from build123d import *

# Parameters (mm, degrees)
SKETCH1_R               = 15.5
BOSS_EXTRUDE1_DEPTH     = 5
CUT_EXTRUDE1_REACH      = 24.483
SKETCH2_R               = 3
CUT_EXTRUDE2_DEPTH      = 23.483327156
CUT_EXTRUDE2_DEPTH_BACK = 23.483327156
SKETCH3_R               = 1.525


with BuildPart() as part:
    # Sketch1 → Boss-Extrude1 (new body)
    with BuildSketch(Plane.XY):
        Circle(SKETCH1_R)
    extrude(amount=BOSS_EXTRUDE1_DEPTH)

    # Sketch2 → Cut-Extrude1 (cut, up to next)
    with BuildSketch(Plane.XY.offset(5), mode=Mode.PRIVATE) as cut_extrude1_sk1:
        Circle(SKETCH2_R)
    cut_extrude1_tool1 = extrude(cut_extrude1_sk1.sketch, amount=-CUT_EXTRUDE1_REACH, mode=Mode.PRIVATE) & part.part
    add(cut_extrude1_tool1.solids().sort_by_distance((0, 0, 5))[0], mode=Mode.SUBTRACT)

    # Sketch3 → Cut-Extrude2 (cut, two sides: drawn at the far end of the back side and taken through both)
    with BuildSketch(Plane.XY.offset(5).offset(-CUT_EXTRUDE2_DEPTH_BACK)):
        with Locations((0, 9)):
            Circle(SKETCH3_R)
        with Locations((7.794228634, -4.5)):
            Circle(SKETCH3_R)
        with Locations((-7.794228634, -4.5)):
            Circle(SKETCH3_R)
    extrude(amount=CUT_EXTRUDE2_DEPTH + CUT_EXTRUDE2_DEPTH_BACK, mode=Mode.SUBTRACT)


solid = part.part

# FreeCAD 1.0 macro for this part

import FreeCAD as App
import Part
import Sketcher

doc = App.newDocument("Part")
body = doc.addObject("PartDesign::Body", "Body")

# Sketch on XY plane
sketch1 = body.newObject("Sketcher::SketchObject", "Sketch")
sketch1.AttachmentSupport = (doc.getObject("XY_Plane"), [""])
sketch1.MapMode = "FlatFace"
sketch1.addGeometry(Part.Circle(App.Vector(0, 0, 0), App.Vector(0, 0, 1), 16), False)
sketch1.addConstraint([
    Sketcher.Constraint("Coincident", 0, 3, -1, 1),
    Sketcher.Constraint("Diameter", 0, 31.0),
])
pad1 = body.newObject("PartDesign::Pad", "Pad")
pad1.Profile = sketch1
pad1.Length = 5

# Sketch on XY plane
sketch2 = body.newObject("Sketcher::SketchObject", "Sketch001")
sketch2.AttachmentSupport = (doc.getObject("XY_Plane"), [""])
sketch2.MapMode = "FlatFace"
sketch2.AttachmentOffset = App.Placement(App.Vector(0, 0, 5), App.Rotation())
sketch2.addGeometry(Part.Circle(App.Vector(0, 0, 0), App.Vector(0, 0, 1), 3), False)
sketch2.addConstraint([
    Sketcher.Constraint("Coincident", 0, 3, -1, 1),
    Sketcher.Constraint("Diameter", 0, 6.0),
])
pocket1 = body.newObject("PartDesign::Pocket", "Pocket")
pocket1.Profile = sketch2
pocket1.Type = "UpToFirst"

# Sketch on XY plane
sketch3 = body.newObject("Sketcher::SketchObject", "Sketch002")
sketch3.AttachmentSupport = (doc.getObject("XY_Plane"), [""])
sketch3.MapMode = "FlatFace"
sketch3.AttachmentOffset = App.Placement(App.Vector(0, 0, 5), App.Rotation())
sketch3.addGeometry([
    Part.Circle(App.Vector(0, 9, 0), App.Vector(0, 0, 1), 1.5),
    Part.Circle(App.Vector(7.8, -4.5, 0), App.Vector(0, 0, 1), 1.5),
    Part.Circle(App.Vector(-7.8, -4.5, 0), App.Vector(0, 0, 1), 1.5),
], False)
sketch3.addConstraint([
    Sketcher.Constraint("Equal", 0, 1),
    Sketcher.Constraint("Equal", 1, 2),
    Sketcher.Constraint("Symmetric", 1, 3, 2, 3, -2),
    Sketcher.Constraint("PointOnObject", 0, 3, -2),
    Sketcher.Constraint("Diameter", 0, 3.05),
    Sketcher.Constraint("DistanceY", -1, 1, 0, 3, 9.0),
    Sketcher.Constraint("DistanceY", 1, 3, -1, 1, 4.5),
    Sketcher.Constraint("DistanceX", -1, 1, 1, 3, 7.794229),
])
pocket2 = body.newObject("PartDesign::Pocket", "Pocket001")
pocket2.Profile = sketch3
pocket2.Type = "ThroughAll"
pocket2.Midplane = True

doc.recompute()
